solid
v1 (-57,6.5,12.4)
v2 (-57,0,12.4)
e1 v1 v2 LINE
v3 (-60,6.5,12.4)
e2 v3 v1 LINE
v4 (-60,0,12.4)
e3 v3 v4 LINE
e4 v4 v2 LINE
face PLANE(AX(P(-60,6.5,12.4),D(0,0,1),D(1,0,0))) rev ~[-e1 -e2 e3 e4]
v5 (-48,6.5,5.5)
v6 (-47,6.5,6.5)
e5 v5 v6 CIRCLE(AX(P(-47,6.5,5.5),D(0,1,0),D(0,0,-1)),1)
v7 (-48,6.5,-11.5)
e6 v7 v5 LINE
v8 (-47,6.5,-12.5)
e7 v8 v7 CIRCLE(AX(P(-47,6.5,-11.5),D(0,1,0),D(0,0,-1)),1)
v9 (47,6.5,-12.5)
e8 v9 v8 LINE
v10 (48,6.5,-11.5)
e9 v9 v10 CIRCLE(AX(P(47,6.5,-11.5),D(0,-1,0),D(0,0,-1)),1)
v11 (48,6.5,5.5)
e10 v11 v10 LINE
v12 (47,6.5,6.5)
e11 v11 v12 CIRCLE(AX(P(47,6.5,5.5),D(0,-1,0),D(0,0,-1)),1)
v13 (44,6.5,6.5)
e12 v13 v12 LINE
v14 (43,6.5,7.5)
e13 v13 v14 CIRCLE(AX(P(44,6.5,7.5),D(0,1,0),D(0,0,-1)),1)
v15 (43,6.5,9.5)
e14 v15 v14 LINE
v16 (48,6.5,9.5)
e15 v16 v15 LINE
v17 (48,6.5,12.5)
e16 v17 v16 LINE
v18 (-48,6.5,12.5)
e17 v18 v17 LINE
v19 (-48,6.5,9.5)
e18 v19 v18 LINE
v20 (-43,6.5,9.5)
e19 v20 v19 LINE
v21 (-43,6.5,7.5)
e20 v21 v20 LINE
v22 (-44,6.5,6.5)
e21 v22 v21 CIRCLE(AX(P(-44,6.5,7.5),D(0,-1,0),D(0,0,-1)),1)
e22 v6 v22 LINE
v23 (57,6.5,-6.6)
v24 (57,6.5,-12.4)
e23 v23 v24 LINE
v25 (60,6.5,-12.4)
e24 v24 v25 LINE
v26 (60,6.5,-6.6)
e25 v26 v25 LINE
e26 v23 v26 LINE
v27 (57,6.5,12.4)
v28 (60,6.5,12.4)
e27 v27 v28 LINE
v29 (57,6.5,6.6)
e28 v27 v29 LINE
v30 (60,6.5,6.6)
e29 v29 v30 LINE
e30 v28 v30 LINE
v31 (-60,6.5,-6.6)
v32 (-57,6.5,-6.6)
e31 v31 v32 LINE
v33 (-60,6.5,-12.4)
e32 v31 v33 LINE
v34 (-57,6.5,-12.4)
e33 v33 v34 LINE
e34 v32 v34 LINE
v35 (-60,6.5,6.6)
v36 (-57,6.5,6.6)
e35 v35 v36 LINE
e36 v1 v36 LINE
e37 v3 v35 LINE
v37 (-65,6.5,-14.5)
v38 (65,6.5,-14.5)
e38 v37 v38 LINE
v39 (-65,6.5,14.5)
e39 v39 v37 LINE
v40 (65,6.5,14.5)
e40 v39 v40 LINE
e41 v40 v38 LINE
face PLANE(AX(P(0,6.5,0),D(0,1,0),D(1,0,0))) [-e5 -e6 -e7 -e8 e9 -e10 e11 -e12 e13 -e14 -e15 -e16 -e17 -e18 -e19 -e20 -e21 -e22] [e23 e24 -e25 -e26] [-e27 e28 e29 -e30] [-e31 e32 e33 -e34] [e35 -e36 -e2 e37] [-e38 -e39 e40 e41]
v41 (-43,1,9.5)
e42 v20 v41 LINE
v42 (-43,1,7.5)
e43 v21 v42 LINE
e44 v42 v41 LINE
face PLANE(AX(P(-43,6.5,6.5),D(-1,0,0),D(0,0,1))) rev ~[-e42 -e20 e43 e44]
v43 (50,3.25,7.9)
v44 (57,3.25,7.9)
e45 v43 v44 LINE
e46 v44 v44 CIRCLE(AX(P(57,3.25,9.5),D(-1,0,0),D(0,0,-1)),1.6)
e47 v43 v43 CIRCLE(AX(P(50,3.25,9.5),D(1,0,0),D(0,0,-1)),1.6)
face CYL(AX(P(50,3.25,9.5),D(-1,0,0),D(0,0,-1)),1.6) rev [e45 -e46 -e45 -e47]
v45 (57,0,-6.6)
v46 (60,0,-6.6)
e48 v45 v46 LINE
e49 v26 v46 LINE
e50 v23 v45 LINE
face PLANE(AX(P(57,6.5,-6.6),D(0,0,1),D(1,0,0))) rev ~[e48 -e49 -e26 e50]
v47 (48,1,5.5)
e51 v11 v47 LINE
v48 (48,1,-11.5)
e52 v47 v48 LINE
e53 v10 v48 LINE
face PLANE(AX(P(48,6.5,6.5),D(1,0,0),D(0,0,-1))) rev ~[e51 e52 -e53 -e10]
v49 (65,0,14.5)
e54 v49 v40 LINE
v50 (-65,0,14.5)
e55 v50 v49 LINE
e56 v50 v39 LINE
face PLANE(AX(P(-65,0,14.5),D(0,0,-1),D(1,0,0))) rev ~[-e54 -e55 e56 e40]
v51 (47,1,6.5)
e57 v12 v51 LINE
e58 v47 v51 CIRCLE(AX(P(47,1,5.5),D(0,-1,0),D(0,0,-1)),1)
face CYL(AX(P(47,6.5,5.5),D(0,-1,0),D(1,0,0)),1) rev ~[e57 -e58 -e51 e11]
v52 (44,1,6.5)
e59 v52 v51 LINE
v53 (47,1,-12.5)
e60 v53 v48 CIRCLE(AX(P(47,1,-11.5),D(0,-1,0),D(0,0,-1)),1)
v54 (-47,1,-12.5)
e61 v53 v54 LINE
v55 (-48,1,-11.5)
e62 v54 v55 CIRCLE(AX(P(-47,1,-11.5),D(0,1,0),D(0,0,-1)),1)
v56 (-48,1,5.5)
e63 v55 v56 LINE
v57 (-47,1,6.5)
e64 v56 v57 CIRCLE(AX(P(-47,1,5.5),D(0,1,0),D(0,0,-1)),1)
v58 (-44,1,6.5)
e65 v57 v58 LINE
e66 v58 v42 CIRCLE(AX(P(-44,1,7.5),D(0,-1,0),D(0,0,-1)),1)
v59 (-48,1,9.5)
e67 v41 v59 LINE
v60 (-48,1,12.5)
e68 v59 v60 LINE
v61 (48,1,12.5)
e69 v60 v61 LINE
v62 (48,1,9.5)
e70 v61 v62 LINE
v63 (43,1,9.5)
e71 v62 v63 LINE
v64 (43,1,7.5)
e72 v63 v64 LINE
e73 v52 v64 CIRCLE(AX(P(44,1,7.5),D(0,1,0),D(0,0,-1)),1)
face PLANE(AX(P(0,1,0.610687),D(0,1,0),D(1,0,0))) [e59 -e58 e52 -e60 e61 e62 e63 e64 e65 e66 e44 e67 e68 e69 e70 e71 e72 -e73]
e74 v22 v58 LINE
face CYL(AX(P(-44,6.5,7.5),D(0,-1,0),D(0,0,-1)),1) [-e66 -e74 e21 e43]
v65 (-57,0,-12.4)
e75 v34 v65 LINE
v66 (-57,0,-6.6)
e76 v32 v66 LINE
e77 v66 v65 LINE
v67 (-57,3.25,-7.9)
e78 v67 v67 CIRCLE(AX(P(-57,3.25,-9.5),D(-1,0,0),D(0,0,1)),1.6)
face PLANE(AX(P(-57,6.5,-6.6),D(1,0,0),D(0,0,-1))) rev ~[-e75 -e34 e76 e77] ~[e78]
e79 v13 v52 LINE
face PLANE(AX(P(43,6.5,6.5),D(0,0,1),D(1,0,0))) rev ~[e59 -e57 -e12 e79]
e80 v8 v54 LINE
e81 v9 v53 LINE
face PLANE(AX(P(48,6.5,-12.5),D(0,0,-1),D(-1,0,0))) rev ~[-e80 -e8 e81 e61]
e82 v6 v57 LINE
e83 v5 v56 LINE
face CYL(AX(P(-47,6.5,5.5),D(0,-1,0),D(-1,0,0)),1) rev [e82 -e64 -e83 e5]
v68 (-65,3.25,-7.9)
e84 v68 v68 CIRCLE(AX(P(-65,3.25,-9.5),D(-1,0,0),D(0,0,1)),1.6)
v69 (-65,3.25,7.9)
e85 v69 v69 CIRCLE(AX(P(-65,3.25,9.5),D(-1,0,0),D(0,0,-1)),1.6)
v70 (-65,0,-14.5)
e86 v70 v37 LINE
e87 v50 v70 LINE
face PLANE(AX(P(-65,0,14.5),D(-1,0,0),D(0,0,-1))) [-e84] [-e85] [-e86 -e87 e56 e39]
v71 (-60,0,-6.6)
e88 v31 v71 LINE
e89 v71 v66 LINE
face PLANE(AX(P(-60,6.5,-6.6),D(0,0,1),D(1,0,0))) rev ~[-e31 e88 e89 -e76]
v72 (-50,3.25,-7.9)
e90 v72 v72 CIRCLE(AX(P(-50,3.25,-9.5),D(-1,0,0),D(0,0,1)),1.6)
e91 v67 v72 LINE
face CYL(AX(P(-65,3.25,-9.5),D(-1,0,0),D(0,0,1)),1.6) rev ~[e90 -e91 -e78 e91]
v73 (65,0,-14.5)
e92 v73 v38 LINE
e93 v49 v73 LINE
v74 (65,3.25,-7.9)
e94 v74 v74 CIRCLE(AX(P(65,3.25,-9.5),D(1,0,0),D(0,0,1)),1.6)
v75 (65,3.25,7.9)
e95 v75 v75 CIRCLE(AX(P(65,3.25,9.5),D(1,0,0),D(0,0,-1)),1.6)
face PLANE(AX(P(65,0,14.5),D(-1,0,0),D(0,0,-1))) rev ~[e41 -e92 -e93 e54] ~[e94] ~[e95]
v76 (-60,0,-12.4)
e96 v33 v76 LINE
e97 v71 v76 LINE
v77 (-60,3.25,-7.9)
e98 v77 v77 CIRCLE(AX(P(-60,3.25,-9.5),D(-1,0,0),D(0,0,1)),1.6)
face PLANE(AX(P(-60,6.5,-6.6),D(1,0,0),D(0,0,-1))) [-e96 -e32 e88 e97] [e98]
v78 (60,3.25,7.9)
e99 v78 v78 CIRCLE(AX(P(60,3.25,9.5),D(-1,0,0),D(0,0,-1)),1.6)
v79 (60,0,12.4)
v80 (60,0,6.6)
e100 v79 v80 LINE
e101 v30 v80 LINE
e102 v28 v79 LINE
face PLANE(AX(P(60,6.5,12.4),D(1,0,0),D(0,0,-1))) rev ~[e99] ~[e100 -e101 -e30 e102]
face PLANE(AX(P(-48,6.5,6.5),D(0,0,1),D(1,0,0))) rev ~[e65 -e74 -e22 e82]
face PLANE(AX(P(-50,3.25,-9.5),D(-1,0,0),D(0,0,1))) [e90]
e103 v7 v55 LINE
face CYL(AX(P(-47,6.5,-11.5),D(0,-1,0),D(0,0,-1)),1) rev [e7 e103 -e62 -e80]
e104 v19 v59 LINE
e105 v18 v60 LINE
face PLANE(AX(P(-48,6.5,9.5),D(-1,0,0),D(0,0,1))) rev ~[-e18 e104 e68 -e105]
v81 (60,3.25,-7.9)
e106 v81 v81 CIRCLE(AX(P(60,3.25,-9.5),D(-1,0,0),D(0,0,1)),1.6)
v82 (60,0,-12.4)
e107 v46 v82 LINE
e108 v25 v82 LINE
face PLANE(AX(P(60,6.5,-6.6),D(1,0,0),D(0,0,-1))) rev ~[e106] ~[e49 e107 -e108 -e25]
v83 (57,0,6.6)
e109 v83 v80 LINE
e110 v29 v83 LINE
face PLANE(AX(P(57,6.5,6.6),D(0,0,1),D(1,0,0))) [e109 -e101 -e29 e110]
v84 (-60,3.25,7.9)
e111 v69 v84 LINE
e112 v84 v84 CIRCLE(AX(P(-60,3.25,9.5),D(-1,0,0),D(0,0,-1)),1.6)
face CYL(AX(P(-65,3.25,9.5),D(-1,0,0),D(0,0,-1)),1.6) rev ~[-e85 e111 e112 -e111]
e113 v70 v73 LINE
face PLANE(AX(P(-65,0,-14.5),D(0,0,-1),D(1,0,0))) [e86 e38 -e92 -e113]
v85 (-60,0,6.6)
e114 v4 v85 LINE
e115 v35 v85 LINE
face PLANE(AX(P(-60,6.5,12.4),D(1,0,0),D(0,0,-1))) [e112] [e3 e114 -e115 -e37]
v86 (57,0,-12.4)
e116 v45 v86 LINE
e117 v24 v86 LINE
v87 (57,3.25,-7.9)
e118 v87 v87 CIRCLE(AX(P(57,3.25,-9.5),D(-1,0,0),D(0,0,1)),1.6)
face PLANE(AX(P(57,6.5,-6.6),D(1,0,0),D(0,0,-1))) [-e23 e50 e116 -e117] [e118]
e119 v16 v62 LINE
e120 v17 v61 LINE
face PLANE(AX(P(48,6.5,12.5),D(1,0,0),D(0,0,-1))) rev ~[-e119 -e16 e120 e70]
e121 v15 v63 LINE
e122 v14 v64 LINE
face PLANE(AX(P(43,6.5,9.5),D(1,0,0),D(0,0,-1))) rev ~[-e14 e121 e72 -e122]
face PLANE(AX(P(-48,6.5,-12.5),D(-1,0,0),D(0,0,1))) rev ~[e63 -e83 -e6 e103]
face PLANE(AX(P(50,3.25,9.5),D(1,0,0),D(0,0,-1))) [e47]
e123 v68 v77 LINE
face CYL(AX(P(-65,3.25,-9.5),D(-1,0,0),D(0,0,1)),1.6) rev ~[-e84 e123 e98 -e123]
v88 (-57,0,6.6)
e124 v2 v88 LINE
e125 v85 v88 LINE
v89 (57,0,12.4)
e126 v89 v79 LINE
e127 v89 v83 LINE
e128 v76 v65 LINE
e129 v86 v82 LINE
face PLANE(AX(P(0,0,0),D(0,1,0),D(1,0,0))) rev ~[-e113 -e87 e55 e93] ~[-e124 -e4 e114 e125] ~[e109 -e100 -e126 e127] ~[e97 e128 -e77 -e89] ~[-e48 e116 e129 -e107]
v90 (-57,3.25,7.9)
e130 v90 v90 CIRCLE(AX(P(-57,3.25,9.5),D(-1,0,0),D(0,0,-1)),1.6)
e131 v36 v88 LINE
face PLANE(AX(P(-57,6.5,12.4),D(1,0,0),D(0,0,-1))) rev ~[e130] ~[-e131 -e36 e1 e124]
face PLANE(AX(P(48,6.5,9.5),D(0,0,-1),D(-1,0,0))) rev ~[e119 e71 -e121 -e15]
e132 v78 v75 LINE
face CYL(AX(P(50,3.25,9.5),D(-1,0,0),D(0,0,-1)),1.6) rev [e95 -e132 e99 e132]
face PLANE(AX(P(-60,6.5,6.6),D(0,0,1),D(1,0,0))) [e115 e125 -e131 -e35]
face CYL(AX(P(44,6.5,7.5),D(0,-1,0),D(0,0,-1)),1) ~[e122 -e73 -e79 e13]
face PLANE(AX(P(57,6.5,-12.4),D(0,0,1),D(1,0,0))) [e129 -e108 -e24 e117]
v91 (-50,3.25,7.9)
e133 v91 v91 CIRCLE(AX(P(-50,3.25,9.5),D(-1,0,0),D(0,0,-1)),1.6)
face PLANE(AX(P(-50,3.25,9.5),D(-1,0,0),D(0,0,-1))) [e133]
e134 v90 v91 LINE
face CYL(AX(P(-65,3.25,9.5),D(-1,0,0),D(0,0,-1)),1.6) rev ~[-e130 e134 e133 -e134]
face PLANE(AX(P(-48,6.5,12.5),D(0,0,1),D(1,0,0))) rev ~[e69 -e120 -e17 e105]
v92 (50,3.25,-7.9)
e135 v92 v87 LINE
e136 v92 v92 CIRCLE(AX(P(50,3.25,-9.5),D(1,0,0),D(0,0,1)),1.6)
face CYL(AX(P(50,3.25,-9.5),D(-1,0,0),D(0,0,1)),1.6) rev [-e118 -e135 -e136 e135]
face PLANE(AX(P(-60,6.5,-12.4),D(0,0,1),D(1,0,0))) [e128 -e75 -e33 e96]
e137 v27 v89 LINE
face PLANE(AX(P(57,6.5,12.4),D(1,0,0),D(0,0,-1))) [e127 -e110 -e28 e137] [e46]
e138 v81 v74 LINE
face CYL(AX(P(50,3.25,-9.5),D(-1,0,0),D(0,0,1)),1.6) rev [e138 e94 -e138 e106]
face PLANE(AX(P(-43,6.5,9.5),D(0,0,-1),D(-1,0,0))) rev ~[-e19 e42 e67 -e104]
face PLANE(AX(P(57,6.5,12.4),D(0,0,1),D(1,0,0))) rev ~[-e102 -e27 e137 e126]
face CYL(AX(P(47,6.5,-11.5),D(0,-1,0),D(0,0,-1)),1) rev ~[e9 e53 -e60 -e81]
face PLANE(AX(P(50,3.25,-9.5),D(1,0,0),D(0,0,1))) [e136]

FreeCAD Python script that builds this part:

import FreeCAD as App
import Part
import Sketcher

V = App.Vector
Q = App.Units.Quantity


def edges_at(feature, points):
    """Names of the edges that pass closest to the given points."""
    edges = feature.Shape.Edges
    near = lambda p: min(range(len(edges)), key=lambda i: edges[i].distToShape(Part.Vertex(*p))[0])
    return sorted({f"Edge{near(p) + 1}" for p in points})


def add_polygon(sketch, points):
    """Adds a closed chain of lines whose ends are joined by coincident constraints."""
    first, n = sketch.GeometryCount, len(points)
    for a, b in zip(points, points[1:] + points[:1]):
        sketch.addGeometry(Part.LineSegment(App.Vector(*a, 0), App.Vector(*b, 0)), False)
    for i in range(n):
        sketch.addConstraint(Sketcher.Constraint("Coincident", first + i, 2, first + (i + 1) % n, 1))

doc = App.newDocument("Part")
body = doc.addObject("PartDesign::Body", "Body")

sketch1 = doc.addObject("Sketcher::SketchObject", "Sketch")
body.addObject(sketch1)
sketch1.AttachmentSupport = (doc.XZ_Plane, [""])
sketch1.MapMode = "FlatFace"
add_polygon(sketch1, [(-65, -14), (-65, 14), (65, 14), (65, -14)])
sketch1.addConstraint([
    Sketcher.Constraint("Vertical", 0),
    Sketcher.Constraint("Horizontal", 1),
    Sketcher.Constraint("Vertical", 2),
    Sketcher.Constraint("Horizontal", 3),
    Sketcher.Constraint("Symmetric", 0, 2, 2, 2, -1, 1),
    Sketcher.Constraint("DistanceX", 1, 1, 1, 2, Q("130 mm")),
    Sketcher.Constraint("DistanceY", 0, 1, 0, 2, Q("29 mm")),
])
pad1 = doc.addObject("PartDesign::Pad", "Pad")
body.addObject(pad1)
pad1.Profile = sketch1
pad1.Length = 6.5
pad1.Reversed = True

sketch2 = doc.addObject("Sketcher::SketchObject", "Sketch001")
body.addObject(sketch2)
sketch2.AttachmentSupport = (doc.XZ_Plane, [""])
sketch2.MapMode = "FlatFace"
sketch2.AttachmentOffset = App.Placement(V(0, 0, -6.5), App.Rotation())
add_polygon(sketch2, [(48, -12.5), (-48, -12.5), (-48, 6.5), (-43, 6.5), (-43, 9.5), (-48, 9.5), (-48, 12.5), (48, 12.5), (48, 9.5), (43, 9.5), (43, 6.5), (48, 6.5)])
sketch2.addConstraint([
    Sketcher.Constraint("Horizontal", 0),
    Sketcher.Constraint("Vertical", 1),
    Sketcher.Constraint("Horizontal", 2),
    Sketcher.Constraint("Vertical", 3),
    Sketcher.Constraint("Horizontal", 4),
    Sketcher.Constraint("Vertical", 5),
    Sketcher.Constraint("Horizontal", 6),
    Sketcher.Constraint("Vertical", 7),
    Sketcher.Constraint("Horizontal", 8),
    Sketcher.Constraint("Vertical", 9),
    Sketcher.Constraint("Horizontal", 10),
    Sketcher.Constraint("Vertical", 11),
    Sketcher.Constraint("Symmetric", 0, 2, 6, 2, -1, 1),
    Sketcher.Constraint("Symmetric", 4, 2, 7, 2, -2),
    Sketcher.Constraint("Symmetric", 2, 2, 9, 2, -2),
    Sketcher.Constraint("Vertical", 7, 2, 10, 2),
    Sketcher.Constraint("Equal", 3, 5),
    Sketcher.Constraint("DistanceX", 0, 2, 0, 1, Q("96 mm")),
    Sketcher.Constraint("DistanceX", 2, 1, 2, 2, Q("5 mm")),
    Sketcher.Constraint("DistanceY", 1, 1, 1, 2, Q("19 mm")),
    Sketcher.Constraint("DistanceY", 3, 1, 3, 2, Q("3 mm")),
])
pocket1 = doc.addObject("PartDesign::Pocket", "Pocket")
body.addObject(pocket1)
pocket1.Profile = sketch2
pocket1.Length = 5.5
pocket1.Reversed = True

sketch3 = doc.addObject("Sketcher::SketchObject", "Sketch002")
body.addObject(sketch3)
sketch3.AttachmentSupport = (doc.XZ_Plane, [""])
sketch3.MapMode = "FlatFace"
sketch3.AttachmentOffset = App.Placement(V(0, 0, -6.5), App.Rotation())
add_polygon(sketch3, [(-60, 6.6), (-60, 12.4), (-57, 12.4), (-57, 6.6)])
add_polygon(sketch3, [(-60, -12.4), (-60, -6.6), (-57, -6.6), (-57, -12.4)])
add_polygon(sketch3, [(57, 6.6), (57, 12.4), (60, 12.4), (60, 6.6)])
add_polygon(sketch3, [(57, -12.4), (57, -6.6), (60, -6.6), (60, -12.4)])
sketch3.addConstraint([
    Sketcher.Constraint("Vertical", 0),
    Sketcher.Constraint("Horizontal", 1),
    Sketcher.Constraint("Vertical", 2),
    Sketcher.Constraint("Horizontal", 3),
    Sketcher.Constraint("Vertical", 4),
    Sketcher.Constraint("Horizontal", 5),
    Sketcher.Constraint("Vertical", 6),
    Sketcher.Constraint("Horizontal", 7),
    Sketcher.Constraint("Vertical", 8),
    Sketcher.Constraint("Horizontal", 9),
    Sketcher.Constraint("Vertical", 10),
    Sketcher.Constraint("Horizontal", 11),
    Sketcher.Constraint("Vertical", 12),
    Sketcher.Constraint("Horizontal", 13),
    Sketcher.Constraint("Vertical", 14),
    Sketcher.Constraint("Horizontal", 15),
    Sketcher.Constraint("Symmetric", 6, 2, 8, 2, -1, 1),
    Sketcher.Constraint("Symmetric", 4, 2, 10, 2, -1, 1),
    Sketcher.Constraint("Symmetric", 2, 2, 12, 2, -1, 1),
    Sketcher.Constraint("Symmetric", 0, 2, 14, 2, -1, 1),
    Sketcher.Constraint("Symmetric", 1, 2, 8, 2, -2),
    Sketcher.Constraint("Symmetric", 3, 2, 10, 2, -2),
    Sketcher.Constraint("DistanceX", 1, 1, 1, 2, Q("3 mm")),
    Sketcher.Constraint("DistanceY", 0, 1, 0, 2, Q("5.8 mm")),
    Sketcher.Constraint("DistanceX", 0, 2, -1, 1, Q("60 mm")),
    Sketcher.Constraint("DistanceY", 4, 2, 0, 2, Q("19 mm")),
])
pocket2 = doc.addObject("PartDesign::Pocket", "Pocket001")
body.addObject(pocket2)
pocket2.Profile = sketch3
pocket2.Type = "ThroughAll"
pocket2.Reversed = True

sketch4 = doc.addObject("Sketcher::SketchObject", "Sketch003")
body.addObject(sketch4)
sketch4.AttachmentSupport = (doc.YZ_Plane, [""])
sketch4.MapMode = "FlatFace"
sketch4.AttachmentOffset = App.Placement(V(0, 0, -65), App.Rotation())
sketch4.addGeometry([
    Part.Circle(V(3.2, -9.5, 0), V(0, 0, 1), 1.6),
    Part.Circle(V(3.2, 9.5, 0), V(0, 0, 1), 1.6),
], False)
sketch4.addConstraint([
    Sketcher.Constraint("Equal", 0, 1),
    Sketcher.Constraint("Symmetric", 0, 3, 1, 3, -1),
    Sketcher.Constraint("Diameter", 0, Q("3.2 mm")),
    Sketcher.Constraint("DistanceY", 0, 3, 1, 3, Q("19 mm")),
    Sketcher.Constraint("DistanceX", -1, 1, 0, 3, Q("3.25 mm")),
])
pocket3 = doc.addObject("PartDesign::Pocket", "Pocket002")
body.addObject(pocket3)
pocket3.Profile = sketch4
pocket3.Length = 15
pocket3.Reversed = True

sketch5 = doc.addObject("Sketcher::SketchObject", "Sketch004")
body.addObject(sketch5)
sketch5.AttachmentSupport = (doc.YZ_Plane, [""])
sketch5.MapMode = "FlatFace"
sketch5.AttachmentOffset = App.Placement(V(0, 0, 50), App.Rotation())
sketch5.addGeometry([
    Part.Circle(V(3.2, 9.5, 0), V(0, 0, 1), 1.6),
    Part.Circle(V(3.2, -9.5, 0), V(0, 0, 1), 1.6),
], False)
sketch5.addConstraint([
    Sketcher.Constraint("Equal", 0, 1),
    Sketcher.Constraint("Symmetric", 0, 3, 1, 3, -1),
    Sketcher.Constraint("Diameter", 0, Q("3.2 mm")),
    Sketcher.Constraint("DistanceY", 1, 3, 0, 3, Q("19 mm")),
    Sketcher.Constraint("DistanceX", -1, 1, 0, 3, Q("3.25 mm")),
])
pocket4 = doc.addObject("PartDesign::Pocket", "Pocket003")
body.addObject(pocket4)
pocket4.Profile = sketch5
pocket4.Length = 15
pocket4.Reversed = True
doc.recompute()

fillet = doc.addObject("PartDesign::Fillet", "Fillet")
body.addObject(fillet)
fillet.Base = (pocket4, edges_at(pocket4, [
    (-48, 3.75, 6.5),
    (-48, 3.75, -12.5),
    (48, 3.75, -12.5),
    (48, 3.75, 6.5),
    (43, 3.75, 6.5),
    (-43, 3.75, 6.5),
]))
fillet.Radius = 1

doc.recompute()
